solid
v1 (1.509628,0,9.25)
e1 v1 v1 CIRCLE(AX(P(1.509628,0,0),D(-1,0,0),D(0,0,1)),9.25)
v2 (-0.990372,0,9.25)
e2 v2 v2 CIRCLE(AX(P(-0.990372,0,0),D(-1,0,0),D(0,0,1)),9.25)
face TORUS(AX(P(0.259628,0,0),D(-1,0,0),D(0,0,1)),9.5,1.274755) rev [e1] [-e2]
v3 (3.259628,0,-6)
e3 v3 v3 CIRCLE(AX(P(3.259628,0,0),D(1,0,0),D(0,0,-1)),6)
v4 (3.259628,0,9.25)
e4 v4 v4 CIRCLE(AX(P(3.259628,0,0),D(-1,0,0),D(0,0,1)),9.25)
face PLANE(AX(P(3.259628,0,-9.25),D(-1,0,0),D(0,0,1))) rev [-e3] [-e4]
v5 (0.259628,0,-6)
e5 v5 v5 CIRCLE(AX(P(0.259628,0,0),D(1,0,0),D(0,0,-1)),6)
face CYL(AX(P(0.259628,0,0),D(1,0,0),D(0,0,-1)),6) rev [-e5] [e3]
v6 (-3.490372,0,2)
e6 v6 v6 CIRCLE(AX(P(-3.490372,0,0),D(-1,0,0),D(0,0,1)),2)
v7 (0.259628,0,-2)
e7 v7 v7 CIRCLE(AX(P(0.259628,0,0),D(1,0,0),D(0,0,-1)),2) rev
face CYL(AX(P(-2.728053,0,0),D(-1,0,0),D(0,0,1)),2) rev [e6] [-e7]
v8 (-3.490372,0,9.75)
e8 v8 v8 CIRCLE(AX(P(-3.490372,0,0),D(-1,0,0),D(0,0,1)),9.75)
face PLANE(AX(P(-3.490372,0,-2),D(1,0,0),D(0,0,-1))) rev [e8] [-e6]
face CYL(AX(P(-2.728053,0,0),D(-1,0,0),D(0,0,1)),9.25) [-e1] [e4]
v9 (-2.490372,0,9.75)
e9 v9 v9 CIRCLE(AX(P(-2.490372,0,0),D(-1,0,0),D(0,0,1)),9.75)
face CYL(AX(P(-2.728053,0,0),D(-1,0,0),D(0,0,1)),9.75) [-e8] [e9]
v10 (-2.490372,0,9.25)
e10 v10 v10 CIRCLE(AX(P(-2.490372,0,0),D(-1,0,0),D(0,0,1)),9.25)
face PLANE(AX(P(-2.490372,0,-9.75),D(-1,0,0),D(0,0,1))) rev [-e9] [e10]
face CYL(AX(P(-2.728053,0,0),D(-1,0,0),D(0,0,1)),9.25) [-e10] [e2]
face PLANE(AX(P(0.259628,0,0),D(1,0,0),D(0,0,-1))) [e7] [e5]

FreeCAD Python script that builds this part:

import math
import FreeCAD as App
import Part
import Sketcher

V = App.Vector
Q = App.Units.Quantity

doc = App.newDocument("Part")
body = doc.addObject("PartDesign::Body", "Body")

# Sketch on XZ plane
sketch1 = body.newObject("Sketcher::SketchObject", "Sketch")
sketch1.AttachmentSupport = (doc.getObject("XZ_Plane"), [""])
sketch1.MapMode = "FlatFace"
sketch1.addGeometry(Part.LineSegment(V(-2.490372, -9.75, 0), V(-3.490372, -9.75, 0)), False)
sketch1.addGeometry(Part.LineSegment(V(-3.490372, -9.75, 0), V(-3.490372, -2, 0)), False)
sketch1.addGeometry(Part.LineSegment(V(-3.490372, -2, 0), V(3.259628, -2, 0)), False)
sketch1.addGeometry(Part.LineSegment(V(3.259628, -2, 0), V(3.259628, -9.25, 0)), False)
sketch1.addGeometry(Part.LineSegment(V(3.259628, -9.25, 0), V(1.509628, -9.25, 0)), False)
sketch1.addGeometry(Part.ArcOfCircle(Part.Circle(V(0.259628, -9.5, 0), V(0, 0, 1), 1.274755), math.radians(11.309932), math.radians(168.690068)), False)
sketch1.addGeometry(Part.LineSegment(V(-0.990372, -9.25, 0), V(-2.490372, -9.25, 0)), False)
sketch1.addGeometry(Part.LineSegment(V(-2.490372, -9.25, 0), V(-2.490372, -9.75, 0)), False)
sketch1.addConstraint(Sketcher.Constraint("Coincident", 0, 2, 1, 1))
sketch1.addConstraint(Sketcher.Constraint("Coincident", 1, 2, 2, 1))
sketch1.addConstraint(Sketcher.Constraint("Coincident", 2, 2, 3, 1))
sketch1.addConstraint(Sketcher.Constraint("Coincident", 3, 2, 4, 1))
sketch1.addConstraint(Sketcher.Constraint("Coincident", 4, 2, 5, 1))
sketch1.addConstraint(Sketcher.Constraint("Coincident", 5, 2, 6, 1))
sketch1.addConstraint(Sketcher.Constraint("Coincident", 6, 2, 7, 1))
sketch1.addConstraint(Sketcher.Constraint("Coincident", 7, 2, 0, 1))
sketch1.addConstraint(Sketcher.Constraint("Horizontal", 0))
sketch1.addConstraint(Sketcher.Constraint("Vertical", 1))
sketch1.addConstraint(Sketcher.Constraint("Horizontal", 2))
sketch1.addConstraint(Sketcher.Constraint("Vertical", 3))
sketch1.addConstraint(Sketcher.Constraint("Horizontal", 4))
sketch1.addConstraint(Sketcher.Constraint("Horizontal", 6))
sketch1.addConstraint(Sketcher.Constraint("Vertical", 7))
sketch1.addConstraint(Sketcher.Constraint("Horizontal", 4, 2, 5, 2))
sketch1.addConstraint(Sketcher.Constraint("DistanceX", 0, 2, 0, 1, Q("1 mm")))
sketch1.addConstraint(Sketcher.Constraint("DistanceX", 6, 2, 6, 1, Q("1.5 mm")))
sketch1.addConstraint(Sketcher.Constraint("DistanceY", 7, 2, 7, 1, Q("0.5 mm")))
sketch1.addConstraint(Sketcher.Constraint("DistanceY", 1, 2, -1, 1, Q("2 mm")))
sketch1.addConstraint(Sketcher.Constraint("DistanceX", 5, 3, 2, 2, Q("3 mm")))
sketch1.addConstraint(Sketcher.Constraint("DistanceX", 0, 2, 4, 2, Q("5 mm")))
sketch1.addConstraint(Sketcher.Constraint("DistanceY", 1, 1, 1, 2, Q("7.75 mm")))
sketch1.addConstraint(Sketcher.Constraint("DistanceY", 5, 3, -1, 1, Q("9.5 mm")))
sketch1.addConstraint(Sketcher.Constraint("DistanceX", -1, 1, 5, 3, Q("0.259628 mm")))
revolution = body.newObject("PartDesign::Revolution", "Revolution")
revolution.Profile = sketch1
revolution.ReferenceAxis = (sketch1, ["H_Axis"])
revolution.Angle = 360

# Sketch on YZ plane
sketch2 = body.newObject("Sketcher::SketchObject", "Sketch001")
sketch2.AttachmentSupport = (doc.getObject("YZ_Plane"), [""])
sketch2.MapMode = "FlatFace"
sketch2.AttachmentOffset = App.Placement(V(0, 0, 3.259628), App.Rotation())
sketch2.addGeometry(Part.Circle(V(0, 0, 0), V(0, 0, 1), 6), False)
sketch2.addConstraint(Sketcher.Constraint("Coincident", 0, 3, -1, 1))
sketch2.addConstraint(Sketcher.Constraint("Diameter", 0, Q("12 mm")))
pocket1 = body.newObject("PartDesign::Pocket", "Pocket")
pocket1.Profile = sketch2
pocket1.Length = 3

doc.recompute()
